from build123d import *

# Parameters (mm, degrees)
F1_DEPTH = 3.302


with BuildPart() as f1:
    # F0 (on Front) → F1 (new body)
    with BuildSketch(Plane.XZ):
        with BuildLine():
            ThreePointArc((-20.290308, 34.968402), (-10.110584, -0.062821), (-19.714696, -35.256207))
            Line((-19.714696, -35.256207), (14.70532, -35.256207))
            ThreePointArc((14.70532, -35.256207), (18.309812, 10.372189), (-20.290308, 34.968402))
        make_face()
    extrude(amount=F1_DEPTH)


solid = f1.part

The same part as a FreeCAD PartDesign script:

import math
import FreeCAD as App
import Part
import Sketcher

V = App.Vector
Q = App.Units.Quantity

doc = App.newDocument("Part")
body = doc.addObject("PartDesign::Body", "Body")

sketch1 = body.newObject("Sketcher::SketchObject", "Sketch")
sketch1.AttachmentSupport = (doc.getObject("XZ_Plane"), [""])
sketch1.MapMode = "FlatFace"
sketch1.addGeometry([
    Part.ArcOfCircle(Part.Circle(V(-77, -1, 0), V(0, 0, 1), 67), math.radians(-31), math.radians(32)),
    Part.LineSegment(V(-20, -35, 0), V(15, -35, 0)),
    Part.ArcOfCircle(Part.Circle(V(-21, -9, 0), V(0, 0, 1), 44), math.radians(-36), math.radians(89)),
], False)
sketch1.addConstraint([
    Sketcher.Constraint("Coincident", 0, 1, 1, 1),
    Sketcher.Constraint("Coincident", 1, 2, 2, 1),
    Sketcher.Constraint("Coincident", 2, 2, 0, 2),
    Sketcher.Constraint("Horizontal", 1),
    Sketcher.Constraint("Radius", 2, Q("44.42686 mm")),
    Sketcher.Constraint("Radius", 0, Q("67.265452 mm")),
    Sketcher.Constraint("DistanceY", -1, 1, 2, 2, Q("34.968402 mm")),
    Sketcher.Constraint("DistanceX", 1, 1, 1, 2, Q("34.420016 mm")),
    Sketcher.Constraint("DistanceY", 0, 3, -1, 1, Q("0.614159 mm")),
    Sketcher.Constraint("DistanceX", 2, 3, -1, 1, Q("21.453171 mm")),
    Sketcher.Constraint("DistanceX", -1, 1, 1, 2, Q("14.70532 mm")),
])
pad1 = body.newObject("PartDesign::Pad", "Pad")
pad1.Profile = sketch1
pad1.Length = Q("0.13 in")

doc.recompute()
